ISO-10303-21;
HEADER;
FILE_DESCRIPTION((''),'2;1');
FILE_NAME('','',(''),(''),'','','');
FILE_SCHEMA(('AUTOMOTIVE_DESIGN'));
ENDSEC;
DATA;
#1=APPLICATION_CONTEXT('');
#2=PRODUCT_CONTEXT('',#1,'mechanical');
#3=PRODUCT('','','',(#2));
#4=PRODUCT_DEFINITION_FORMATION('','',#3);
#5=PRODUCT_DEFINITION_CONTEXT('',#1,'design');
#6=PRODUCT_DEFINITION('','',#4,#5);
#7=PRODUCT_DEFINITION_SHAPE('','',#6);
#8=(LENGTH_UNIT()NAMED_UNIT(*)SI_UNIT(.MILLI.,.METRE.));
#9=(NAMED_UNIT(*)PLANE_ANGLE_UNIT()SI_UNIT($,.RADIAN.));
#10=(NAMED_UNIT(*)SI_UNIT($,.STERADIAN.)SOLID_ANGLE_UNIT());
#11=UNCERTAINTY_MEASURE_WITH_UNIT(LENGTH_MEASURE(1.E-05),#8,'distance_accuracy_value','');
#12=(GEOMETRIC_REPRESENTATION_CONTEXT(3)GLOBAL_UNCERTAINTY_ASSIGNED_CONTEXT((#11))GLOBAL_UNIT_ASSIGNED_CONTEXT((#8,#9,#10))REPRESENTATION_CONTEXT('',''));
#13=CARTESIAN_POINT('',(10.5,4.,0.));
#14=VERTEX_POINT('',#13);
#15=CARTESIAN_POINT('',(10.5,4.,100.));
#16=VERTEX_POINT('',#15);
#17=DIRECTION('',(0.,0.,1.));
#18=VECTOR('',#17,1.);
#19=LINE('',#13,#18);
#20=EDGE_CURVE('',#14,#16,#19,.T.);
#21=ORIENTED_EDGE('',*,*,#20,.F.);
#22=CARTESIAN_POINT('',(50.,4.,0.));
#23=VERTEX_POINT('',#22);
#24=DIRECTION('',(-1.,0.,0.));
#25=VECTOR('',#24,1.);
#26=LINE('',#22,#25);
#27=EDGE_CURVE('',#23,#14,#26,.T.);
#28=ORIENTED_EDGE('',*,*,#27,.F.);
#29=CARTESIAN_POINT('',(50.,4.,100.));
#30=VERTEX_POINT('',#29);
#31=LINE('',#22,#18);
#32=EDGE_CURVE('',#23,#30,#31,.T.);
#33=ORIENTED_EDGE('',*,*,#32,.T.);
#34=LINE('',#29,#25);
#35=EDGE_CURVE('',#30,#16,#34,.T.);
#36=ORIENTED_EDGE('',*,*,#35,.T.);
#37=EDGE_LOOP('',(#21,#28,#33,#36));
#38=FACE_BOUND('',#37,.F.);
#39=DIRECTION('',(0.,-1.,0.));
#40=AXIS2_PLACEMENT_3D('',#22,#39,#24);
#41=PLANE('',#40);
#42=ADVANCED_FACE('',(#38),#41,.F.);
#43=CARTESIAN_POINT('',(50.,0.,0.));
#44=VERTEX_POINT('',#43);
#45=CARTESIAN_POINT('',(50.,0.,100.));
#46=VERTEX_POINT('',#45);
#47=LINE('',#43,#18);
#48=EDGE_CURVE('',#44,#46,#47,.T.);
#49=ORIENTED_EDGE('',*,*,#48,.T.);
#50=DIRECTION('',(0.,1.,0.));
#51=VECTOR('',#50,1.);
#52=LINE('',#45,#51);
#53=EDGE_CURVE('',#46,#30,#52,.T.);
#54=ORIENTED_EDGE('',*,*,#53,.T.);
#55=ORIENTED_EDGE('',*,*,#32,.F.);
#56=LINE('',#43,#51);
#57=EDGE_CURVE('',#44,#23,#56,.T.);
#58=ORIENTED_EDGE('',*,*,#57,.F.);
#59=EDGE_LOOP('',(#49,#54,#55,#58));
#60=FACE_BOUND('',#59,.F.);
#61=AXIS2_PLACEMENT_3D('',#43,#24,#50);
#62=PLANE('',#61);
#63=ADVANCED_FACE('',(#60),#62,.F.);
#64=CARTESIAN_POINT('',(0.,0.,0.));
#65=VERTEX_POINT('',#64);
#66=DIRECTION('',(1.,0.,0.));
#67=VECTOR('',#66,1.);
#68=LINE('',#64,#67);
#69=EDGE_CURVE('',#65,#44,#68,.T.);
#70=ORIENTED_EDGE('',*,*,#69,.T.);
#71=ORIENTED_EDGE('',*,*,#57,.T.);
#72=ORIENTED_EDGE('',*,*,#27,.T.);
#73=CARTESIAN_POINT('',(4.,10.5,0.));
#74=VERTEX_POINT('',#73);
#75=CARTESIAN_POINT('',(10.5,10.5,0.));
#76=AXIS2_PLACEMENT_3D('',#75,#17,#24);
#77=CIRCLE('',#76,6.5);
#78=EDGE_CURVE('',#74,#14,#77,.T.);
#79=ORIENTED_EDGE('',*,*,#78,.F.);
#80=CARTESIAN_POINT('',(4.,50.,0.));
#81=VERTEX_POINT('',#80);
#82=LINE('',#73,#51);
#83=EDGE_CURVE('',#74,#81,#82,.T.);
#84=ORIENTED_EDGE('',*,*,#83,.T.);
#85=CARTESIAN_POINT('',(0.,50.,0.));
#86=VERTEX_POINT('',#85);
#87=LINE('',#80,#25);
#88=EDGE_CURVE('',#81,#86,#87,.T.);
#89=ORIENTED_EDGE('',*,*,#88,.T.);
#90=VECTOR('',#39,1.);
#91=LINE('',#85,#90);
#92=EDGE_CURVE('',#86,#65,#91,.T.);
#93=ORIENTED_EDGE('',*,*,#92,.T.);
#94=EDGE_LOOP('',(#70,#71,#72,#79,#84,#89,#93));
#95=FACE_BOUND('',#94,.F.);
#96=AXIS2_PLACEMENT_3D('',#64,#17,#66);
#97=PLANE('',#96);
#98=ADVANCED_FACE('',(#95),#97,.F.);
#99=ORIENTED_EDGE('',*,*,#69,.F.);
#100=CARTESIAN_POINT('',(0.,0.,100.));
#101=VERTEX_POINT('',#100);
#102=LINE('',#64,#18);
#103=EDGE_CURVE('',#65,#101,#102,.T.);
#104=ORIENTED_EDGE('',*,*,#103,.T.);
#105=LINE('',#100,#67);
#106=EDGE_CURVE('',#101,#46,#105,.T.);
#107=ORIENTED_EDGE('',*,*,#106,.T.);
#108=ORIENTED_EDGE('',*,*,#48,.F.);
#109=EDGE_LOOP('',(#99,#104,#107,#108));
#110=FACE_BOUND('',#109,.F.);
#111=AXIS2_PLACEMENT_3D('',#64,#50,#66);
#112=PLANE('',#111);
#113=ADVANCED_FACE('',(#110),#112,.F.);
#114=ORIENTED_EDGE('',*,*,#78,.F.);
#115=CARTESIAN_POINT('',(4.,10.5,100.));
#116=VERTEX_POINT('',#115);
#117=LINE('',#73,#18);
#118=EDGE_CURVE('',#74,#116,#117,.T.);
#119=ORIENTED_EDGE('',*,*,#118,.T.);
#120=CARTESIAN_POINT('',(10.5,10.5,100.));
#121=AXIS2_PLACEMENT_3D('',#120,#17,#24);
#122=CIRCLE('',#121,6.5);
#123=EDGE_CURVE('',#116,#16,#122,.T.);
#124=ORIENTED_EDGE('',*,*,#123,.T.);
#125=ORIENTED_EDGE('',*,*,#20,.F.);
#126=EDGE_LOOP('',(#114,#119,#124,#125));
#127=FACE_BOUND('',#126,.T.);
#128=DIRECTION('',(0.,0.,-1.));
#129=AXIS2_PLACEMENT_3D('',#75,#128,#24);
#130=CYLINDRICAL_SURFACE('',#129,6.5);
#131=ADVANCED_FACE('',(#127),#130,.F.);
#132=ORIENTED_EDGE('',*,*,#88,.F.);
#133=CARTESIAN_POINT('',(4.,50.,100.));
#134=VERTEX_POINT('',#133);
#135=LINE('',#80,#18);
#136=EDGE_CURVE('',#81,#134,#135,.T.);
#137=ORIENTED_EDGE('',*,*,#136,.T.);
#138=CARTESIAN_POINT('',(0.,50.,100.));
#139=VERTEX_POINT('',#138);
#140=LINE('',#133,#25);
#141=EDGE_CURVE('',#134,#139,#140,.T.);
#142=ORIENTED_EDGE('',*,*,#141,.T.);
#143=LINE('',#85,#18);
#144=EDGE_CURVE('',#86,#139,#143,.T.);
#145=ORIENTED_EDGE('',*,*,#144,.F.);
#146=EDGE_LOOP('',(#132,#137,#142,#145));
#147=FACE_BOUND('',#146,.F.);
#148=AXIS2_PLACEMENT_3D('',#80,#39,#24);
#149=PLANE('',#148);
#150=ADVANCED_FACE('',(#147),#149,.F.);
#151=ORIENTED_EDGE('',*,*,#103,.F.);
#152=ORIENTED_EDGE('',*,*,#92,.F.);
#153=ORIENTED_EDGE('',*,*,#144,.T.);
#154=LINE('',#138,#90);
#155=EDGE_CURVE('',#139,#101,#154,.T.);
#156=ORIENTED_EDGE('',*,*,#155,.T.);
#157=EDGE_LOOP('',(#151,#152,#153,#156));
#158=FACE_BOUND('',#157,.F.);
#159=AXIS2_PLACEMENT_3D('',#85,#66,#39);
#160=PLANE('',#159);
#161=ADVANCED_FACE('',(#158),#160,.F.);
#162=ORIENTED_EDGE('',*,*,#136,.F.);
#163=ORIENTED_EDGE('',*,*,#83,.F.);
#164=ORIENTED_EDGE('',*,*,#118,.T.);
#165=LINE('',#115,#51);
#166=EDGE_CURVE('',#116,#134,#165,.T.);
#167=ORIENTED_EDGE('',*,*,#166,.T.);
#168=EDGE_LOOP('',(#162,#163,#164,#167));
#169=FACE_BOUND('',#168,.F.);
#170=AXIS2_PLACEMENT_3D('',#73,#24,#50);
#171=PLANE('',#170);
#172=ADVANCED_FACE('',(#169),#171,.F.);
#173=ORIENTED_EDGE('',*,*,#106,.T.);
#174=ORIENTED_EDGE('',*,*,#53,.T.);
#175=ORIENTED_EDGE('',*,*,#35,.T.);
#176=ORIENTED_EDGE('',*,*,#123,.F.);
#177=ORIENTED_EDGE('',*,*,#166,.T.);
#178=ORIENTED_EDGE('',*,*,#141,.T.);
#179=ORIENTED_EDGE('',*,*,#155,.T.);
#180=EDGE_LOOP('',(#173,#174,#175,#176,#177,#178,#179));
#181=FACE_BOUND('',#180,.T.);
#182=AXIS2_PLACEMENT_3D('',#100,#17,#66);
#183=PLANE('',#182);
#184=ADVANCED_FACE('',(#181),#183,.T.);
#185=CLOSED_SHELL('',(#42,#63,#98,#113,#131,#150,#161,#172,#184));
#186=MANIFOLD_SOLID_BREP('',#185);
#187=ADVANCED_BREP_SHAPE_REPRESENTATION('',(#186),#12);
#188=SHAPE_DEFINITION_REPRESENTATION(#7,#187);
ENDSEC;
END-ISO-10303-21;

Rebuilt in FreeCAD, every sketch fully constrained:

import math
import FreeCAD as App
import Part
import Sketcher
Q = App.Units.Quantity

doc = App.newDocument("Part")
body = doc.addObject("PartDesign::Body", "Body")

# Sketch on XY plane
sketch1 = doc.addObject("Sketcher::SketchObject", "Sketch")
body.addObject(sketch1)
sketch1.AttachmentSupport = (doc.XY_Plane, [""])
sketch1.MapMode = "FlatFace"
sketch1.addGeometry([
    Part.LineSegment(App.Vector(4, 50, 0), App.Vector(0, 50, 0)),  # 0
    Part.LineSegment(App.Vector(0, 50, 0), App.Vector(0, 0, 0)),  # 1
    Part.LineSegment(App.Vector(0, 0, 0), App.Vector(50, 0, 0)),  # 2
    Part.LineSegment(App.Vector(50, 0, 0), App.Vector(50, 4, 0)),  # 3
    Part.LineSegment(App.Vector(50, 4, 0), App.Vector(10.5, 4, 0)),  # 4
    Part.ArcOfCircle(Part.Circle(App.Vector(10.5, 10.5, 0), App.Vector(0, 0, 1), 6.5), math.radians(180), math.radians(270)),  # 5
    Part.LineSegment(App.Vector(4, 10.5, 0), App.Vector(4, 50, 0)),  # 6
], False)
sketch1.addConstraint([
    Sketcher.Constraint("Coincident", 0, 2, 1, 1),
    Sketcher.Constraint("Coincident", 1, 2, 2, 1),
    Sketcher.Constraint("Coincident", 2, 2, 3, 1),
    Sketcher.Constraint("Coincident", 3, 2, 4, 1),
    Sketcher.Constraint("Tangent", 4, 2, 5, 2),
    Sketcher.Constraint("Tangent", 5, 1, 6, 1),
    Sketcher.Constraint("Coincident", 6, 2, 0, 1),
    Sketcher.Constraint("Horizontal", 0),
    Sketcher.Constraint("Vertical", 1),
    Sketcher.Constraint("Horizontal", 2),
    Sketcher.Constraint("Vertical", 3),
    Sketcher.Constraint("Horizontal", 4),
    Sketcher.Constraint("Vertical", 6),
    Sketcher.Constraint("Coincident", 1, 2, -1, 1),
    Sketcher.Constraint("Equal", 2, 1),
    Sketcher.Constraint("Equal", 0, 3),
    Sketcher.Constraint("Radius", 5, Q("6.5 mm")),
    Sketcher.Constraint("DistanceX", 0, 2, 0, 1, Q("4 mm")),
    Sketcher.Constraint("DistanceX", 2, 1, 2, 2, Q("50 mm")),
])
pad1 = doc.addObject("PartDesign::Pad", "Pad")
body.addObject(pad1)
pad1.Profile = sketch1
pad1.Length = 100

doc.recompute()
